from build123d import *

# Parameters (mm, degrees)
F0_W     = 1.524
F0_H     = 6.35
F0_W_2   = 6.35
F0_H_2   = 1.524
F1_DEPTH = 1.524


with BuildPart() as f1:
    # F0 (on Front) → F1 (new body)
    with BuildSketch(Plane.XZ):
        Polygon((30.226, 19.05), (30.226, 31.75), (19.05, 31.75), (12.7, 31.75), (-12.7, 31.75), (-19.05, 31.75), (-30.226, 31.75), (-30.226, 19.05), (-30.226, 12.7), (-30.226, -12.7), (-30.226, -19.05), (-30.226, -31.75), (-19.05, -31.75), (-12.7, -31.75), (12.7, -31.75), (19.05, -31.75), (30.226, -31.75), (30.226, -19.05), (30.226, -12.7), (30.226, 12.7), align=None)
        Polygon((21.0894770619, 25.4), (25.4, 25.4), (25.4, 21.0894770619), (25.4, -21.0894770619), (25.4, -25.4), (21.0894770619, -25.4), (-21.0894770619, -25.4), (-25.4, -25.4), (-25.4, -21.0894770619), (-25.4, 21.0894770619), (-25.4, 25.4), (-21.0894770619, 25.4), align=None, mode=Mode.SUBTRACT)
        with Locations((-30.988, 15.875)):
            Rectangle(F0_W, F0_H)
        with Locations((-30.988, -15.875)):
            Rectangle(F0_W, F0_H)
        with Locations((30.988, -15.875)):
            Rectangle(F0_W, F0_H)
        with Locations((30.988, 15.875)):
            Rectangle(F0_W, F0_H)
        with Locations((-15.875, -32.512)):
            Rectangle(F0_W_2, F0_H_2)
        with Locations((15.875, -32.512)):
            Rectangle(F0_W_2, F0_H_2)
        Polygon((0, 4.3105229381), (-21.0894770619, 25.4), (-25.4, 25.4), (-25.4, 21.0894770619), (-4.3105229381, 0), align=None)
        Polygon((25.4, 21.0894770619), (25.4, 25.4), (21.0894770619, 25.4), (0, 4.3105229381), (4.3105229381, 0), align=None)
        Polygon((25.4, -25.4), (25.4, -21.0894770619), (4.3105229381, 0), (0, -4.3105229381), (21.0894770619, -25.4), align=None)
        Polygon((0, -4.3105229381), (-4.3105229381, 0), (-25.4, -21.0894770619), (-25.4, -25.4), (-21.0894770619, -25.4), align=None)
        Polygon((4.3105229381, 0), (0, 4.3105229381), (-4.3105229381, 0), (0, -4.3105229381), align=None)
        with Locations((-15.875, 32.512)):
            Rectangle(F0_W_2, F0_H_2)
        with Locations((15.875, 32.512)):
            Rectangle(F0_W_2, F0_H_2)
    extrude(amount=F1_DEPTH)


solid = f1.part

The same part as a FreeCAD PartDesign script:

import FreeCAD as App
import Part
import Sketcher
Q = App.Units.Quantity

doc = App.newDocument("Part")
params = doc.addObject("Spreadsheet::Sheet", "Params")
for row, (alias, value) in enumerate([
    ("sketch1_width", "1 in"),
    ("sketch1_height", "0.5 in"),
    ("sketch1_width2", "0.44 in"),
    ("sketch1_width3", "0.25 in"),
    ("sketch1_width4", "0.06 in"),
    ("pad1_length", "0.06 in"),
], start=1):
    params.set(f"A{row}", alias)
    params.set(f"B{row}", "=" + value)
    params.setAlias(f"B{row}", alias)

body = doc.addObject("PartDesign::Body", "Body")

sketch1 = body.newObject("Sketcher::SketchObject", "Sketch")
sketch1.AttachmentSupport = (doc.getObject("XZ_Plane"), [""])
sketch1.MapMode = "FlatFace"
sketch1.addGeometry(Part.LineSegment(App.Vector(30.2, 31.8, 0), App.Vector(19.1, 31.8, 0)), False)
sketch1.addGeometry(Part.LineSegment(App.Vector(19.1, 31.8, 0), App.Vector(19.1, 33.3, 0)), False)
sketch1.addGeometry(Part.LineSegment(App.Vector(19.1, 33.3, 0), App.Vector(12.7, 33.3, 0)), False)
sketch1.addGeometry(Part.LineSegment(App.Vector(12.7, 33.3, 0), App.Vector(12.7, 31.8, 0)), False)
sketch1.addGeometry(Part.LineSegment(App.Vector(12.7, 31.8, 0), App.Vector(-12.7, 31.8, 0)), False)
sketch1.addGeometry(Part.LineSegment(App.Vector(-12.7, 31.8, 0), App.Vector(-12.7, 33.3, 0)), False)
sketch1.addGeometry(Part.LineSegment(App.Vector(-12.7, 33.3, 0), App.Vector(-19.1, 33.3, 0)), False)
sketch1.addGeometry(Part.LineSegment(App.Vector(-19.1, 33.3, 0), App.Vector(-19.1, 31.8, 0)), False)
sketch1.addGeometry(Part.LineSegment(App.Vector(-19.1, 31.8, 0), App.Vector(-30.2, 31.8, 0)), False)
sketch1.addGeometry(Part.LineSegment(App.Vector(-30.2, 31.8, 0), App.Vector(-30.2, 19.1, 0)), False)
sketch1.addGeometry(Part.LineSegment(App.Vector(-30.2, 19.1, 0), App.Vector(-31.8, 19.1, 0)), False)
sketch1.addGeometry(Part.LineSegment(App.Vector(-31.8, 19.1, 0), App.Vector(-31.8, 12.7, 0)), False)
sketch1.addGeometry(Part.LineSegment(App.Vector(-31.8, 12.7, 0), App.Vector(-30.2, 12.7, 0)), False)
sketch1.addGeometry(Part.LineSegment(App.Vector(-30.2, 12.7, 0), App.Vector(-30.2, -12.7, 0)), False)
sketch1.addGeometry(Part.LineSegment(App.Vector(-30.2, -12.7, 0), App.Vector(-31.8, -12.7, 0)), False)
sketch1.addGeometry(Part.LineSegment(App.Vector(-31.8, -12.7, 0), App.Vector(-31.8, -19.1, 0)), False)
sketch1.addGeometry(Part.LineSegment(App.Vector(-31.8, -19.1, 0), App.Vector(-30.2, -19.1, 0)), False)
sketch1.addGeometry(Part.LineSegment(App.Vector(-30.2, -19.1, 0), App.Vector(-30.2, -31.8, 0)), False)
sketch1.addGeometry(Part.LineSegment(App.Vector(-30.2, -31.8, 0), App.Vector(-19.1, -31.8, 0)), False)
sketch1.addGeometry(Part.LineSegment(App.Vector(-19.1, -31.8, 0), App.Vector(-19.1, -33.3, 0)), False)
sketch1.addGeometry(Part.LineSegment(App.Vector(-19.1, -33.3, 0), App.Vector(-12.7, -33.3, 0)), False)
sketch1.addGeometry(Part.LineSegment(App.Vector(-12.7, -33.3, 0), App.Vector(-12.7, -31.8, 0)), False)
sketch1.addGeometry(Part.LineSegment(App.Vector(-12.7, -31.8, 0), App.Vector(12.7, -31.8, 0)), False)
sketch1.addGeometry(Part.LineSegment(App.Vector(12.7, -31.8, 0), App.Vector(12.7, -33.3, 0)), False)
sketch1.addGeometry(Part.LineSegment(App.Vector(12.7, -33.3, 0), App.Vector(19.1, -33.3, 0)), False)
sketch1.addGeometry(Part.LineSegment(App.Vector(19.1, -33.3, 0), App.Vector(19.1, -31.8, 0)), False)
sketch1.addGeometry(Part.LineSegment(App.Vector(19.1, -31.8, 0), App.Vector(30.2, -31.8, 0)), False)
sketch1.addGeometry(Part.LineSegment(App.Vector(30.2, -31.8, 0), App.Vector(30.2, -19.1, 0)), False)
sketch1.addGeometry(Part.LineSegment(App.Vector(30.2, -19.1, 0), App.Vector(31.8, -19.1, 0)), False)
sketch1.addGeometry(Part.LineSegment(App.Vector(31.8, -19.1, 0), App.Vector(31.8, -12.7, 0)), False)
sketch1.addGeometry(Part.LineSegment(App.Vector(31.8, -12.7, 0), App.Vector(30.2, -12.7, 0)), False)
sketch1.addGeometry(Part.LineSegment(App.Vector(30.2, -12.7, 0), App.Vector(30.2, 12.7, 0)), False)
sketch1.addGeometry(Part.LineSegment(App.Vector(30.2, 12.7, 0), App.Vector(31.8, 12.7, 0)), False)
sketch1.addGeometry(Part.LineSegment(App.Vector(31.8, 12.7, 0), App.Vector(31.8, 19.1, 0)), False)
sketch1.addGeometry(Part.LineSegment(App.Vector(31.8, 19.1, 0), App.Vector(30.2, 19.1, 0)), False)
sketch1.addGeometry(Part.LineSegment(App.Vector(30.2, 19.1, 0), App.Vector(30.2, 31.8, 0)), False)
sketch1.addGeometry(Part.LineSegment(App.Vector(-21.1, -25.4, 0), App.Vector(0, -4.3, 0)), False)
sketch1.addGeometry(Part.LineSegment(App.Vector(0, -4.3, 0), App.Vector(21.1, -25.4, 0)), False)
sketch1.addGeometry(Part.LineSegment(App.Vector(21.1, -25.4, 0), App.Vector(-21.1, -25.4, 0)), False)
sketch1.addGeometry(Part.LineSegment(App.Vector(-25.4, 21.1, 0), App.Vector(-4.3, 0, 0)), False)
sketch1.addGeometry(Part.LineSegment(App.Vector(-4.3, 0, 0), App.Vector(-25.4, -21.1, 0)), False)
sketch1.addGeometry(Part.LineSegment(App.Vector(-25.4, -21.1, 0), App.Vector(-25.4, 21.1, 0)), False)
sketch1.addGeometry(Part.LineSegment(App.Vector(25.4, -21.1, 0), App.Vector(4.3, 0, 0)), False)
sketch1.addGeometry(Part.LineSegment(App.Vector(4.3, 0, 0), App.Vector(25.4, 21.1, 0)), False)
sketch1.addGeometry(Part.LineSegment(App.Vector(25.4, 21.1, 0), App.Vector(25.4, -21.1, 0)), False)
sketch1.addGeometry(Part.LineSegment(App.Vector(21.1, 25.4, 0), App.Vector(0, 4.3, 0)), False)
sketch1.addGeometry(Part.LineSegment(App.Vector(0, 4.3, 0), App.Vector(-21.1, 25.4, 0)), False)
sketch1.addGeometry(Part.LineSegment(App.Vector(-21.1, 25.4, 0), App.Vector(21.1, 25.4, 0)), False)
sketch1.addConstraint(Sketcher.Constraint("Coincident", 0, 2, 1, 1))
sketch1.addConstraint(Sketcher.Constraint("Coincident", 1, 2, 2, 1))
sketch1.addConstraint(Sketcher.Constraint("Coincident", 2, 2, 3, 1))
sketch1.addConstraint(Sketcher.Constraint("Coincident", 3, 2, 4, 1))
sketch1.addConstraint(Sketcher.Constraint("Coincident", 4, 2, 5, 1))
sketch1.addConstraint(Sketcher.Constraint("Coincident", 5, 2, 6, 1))
sketch1.addConstraint(Sketcher.Constraint("Coincident", 6, 2, 7, 1))
sketch1.addConstraint(Sketcher.Constraint("Coincident", 7, 2, 8, 1))
sketch1.addConstraint(Sketcher.Constraint("Coincident", 8, 2, 9, 1))
sketch1.addConstraint(Sketcher.Constraint("Coincident", 9, 2, 10, 1))
sketch1.addConstraint(Sketcher.Constraint("Coincident", 10, 2, 11, 1))
sketch1.addConstraint(Sketcher.Constraint("Coincident", 11, 2, 12, 1))
sketch1.addConstraint(Sketcher.Constraint("Coincident", 12, 2, 13, 1))
sketch1.addConstraint(Sketcher.Constraint("Coincident", 13, 2, 14, 1))
sketch1.addConstraint(Sketcher.Constraint("Coincident", 14, 2, 15, 1))
sketch1.addConstraint(Sketcher.Constraint("Coincident", 15, 2, 16, 1))
sketch1.addConstraint(Sketcher.Constraint("Coincident", 16, 2, 17, 1))
sketch1.addConstraint(Sketcher.Constraint("Coincident", 17, 2, 18, 1))
sketch1.addConstraint(Sketcher.Constraint("Coincident", 18, 2, 19, 1))
sketch1.addConstraint(Sketcher.Constraint("Coincident", 19, 2, 20, 1))
sketch1.addConstraint(Sketcher.Constraint("Coincident", 20, 2, 21, 1))
sketch1.addConstraint(Sketcher.Constraint("Coincident", 21, 2, 22, 1))
sketch1.addConstraint(Sketcher.Constraint("Coincident", 22, 2, 23, 1))
sketch1.addConstraint(Sketcher.Constraint("Coincident", 23, 2, 24, 1))
sketch1.addConstraint(Sketcher.Constraint("Coincident", 24, 2, 25, 1))
sketch1.addConstraint(Sketcher.Constraint("Coincident", 25, 2, 26, 1))
sketch1.addConstraint(Sketcher.Constraint("Coincident", 26, 2, 27, 1))
sketch1.addConstraint(Sketcher.Constraint("Coincident", 27, 2, 28, 1))
sketch1.addConstraint(Sketcher.Constraint("Coincident", 28, 2, 29, 1))
sketch1.addConstraint(Sketcher.Constraint("Coincident", 29, 2, 30, 1))
sketch1.addConstraint(Sketcher.Constraint("Coincident", 30, 2, 31, 1))
sketch1.addConstraint(Sketcher.Constraint("Coincident", 31, 2, 32, 1))
sketch1.addConstraint(Sketcher.Constraint("Coincident", 32, 2, 33, 1))
sketch1.addConstraint(Sketcher.Constraint("Coincident", 33, 2, 34, 1))
sketch1.addConstraint(Sketcher.Constraint("Coincident", 34, 2, 35, 1))
sketch1.addConstraint(Sketcher.Constraint("Coincident", 35, 2, 0, 1))
sketch1.addConstraint(Sketcher.Constraint("Coincident", 36, 2, 37, 1))
sketch1.addConstraint(Sketcher.Constraint("Coincident", 37, 2, 38, 1))
sketch1.addConstraint(Sketcher.Constraint("Coincident", 38, 2, 36, 1))
sketch1.addConstraint(Sketcher.Constraint("Coincident", 39, 2, 40, 1))
sketch1.addConstraint(Sketcher.Constraint("Coincident", 40, 2, 41, 1))
sketch1.addConstraint(Sketcher.Constraint("Coincident", 41, 2, 39, 1))
sketch1.addConstraint(Sketcher.Constraint("Coincident", 42, 2, 43, 1))
sketch1.addConstraint(Sketcher.Constraint("Coincident", 43, 2, 44, 1))
sketch1.addConstraint(Sketcher.Constraint("Coincident", 44, 2, 42, 1))
sketch1.addConstraint(Sketcher.Constraint("Coincident", 45, 2, 46, 1))
sketch1.addConstraint(Sketcher.Constraint("Coincident", 46, 2, 47, 1))
sketch1.addConstraint(Sketcher.Constraint("Coincident", 47, 2, 45, 1))
sketch1.addConstraint(Sketcher.Constraint("Horizontal", 0))
sketch1.addConstraint(Sketcher.Constraint("Vertical", 1))
sketch1.addConstraint(Sketcher.Constraint("Horizontal", 2))
sketch1.addConstraint(Sketcher.Constraint("Vertical", 3))
sketch1.addConstraint(Sketcher.Constraint("Horizontal", 4))
sketch1.addConstraint(Sketcher.Constraint("Vertical", 5))
sketch1.addConstraint(Sketcher.Constraint("Horizontal", 6))
sketch1.addConstraint(Sketcher.Constraint("Vertical", 7))
sketch1.addConstraint(Sketcher.Constraint("Horizontal", 8))
sketch1.addConstraint(Sketcher.Constraint("Vertical", 9))
sketch1.addConstraint(Sketcher.Constraint("Horizontal", 10))
sketch1.addConstraint(Sketcher.Constraint("Vertical", 11))
sketch1.addConstraint(Sketcher.Constraint("Horizontal", 12))
sketch1.addConstraint(Sketcher.Constraint("Vertical", 13))
sketch1.addConstraint(Sketcher.Constraint("Horizontal", 14))
sketch1.addConstraint(Sketcher.Constraint("Vertical", 15))
sketch1.addConstraint(Sketcher.Constraint("Horizontal", 16))
sketch1.addConstraint(Sketcher.Constraint("Vertical", 17))
sketch1.addConstraint(Sketcher.Constraint("Horizontal", 18))
sketch1.addConstraint(Sketcher.Constraint("Vertical", 19))
sketch1.addConstraint(Sketcher.Constraint("Horizontal", 20))
sketch1.addConstraint(Sketcher.Constraint("Vertical", 21))
sketch1.addConstraint(Sketcher.Constraint("Horizontal", 22))
sketch1.addConstraint(Sketcher.Constraint("Vertical", 23))
sketch1.addConstraint(Sketcher.Constraint("Horizontal", 24))
sketch1.addConstraint(Sketcher.Constraint("Vertical", 25))
sketch1.addConstraint(Sketcher.Constraint("Horizontal", 26))
sketch1.addConstraint(Sketcher.Constraint("Vertical", 27))
sketch1.addConstraint(Sketcher.Constraint("Horizontal", 28))
sketch1.addConstraint(Sketcher.Constraint("Vertical", 29))
sketch1.addConstraint(Sketcher.Constraint("Horizontal", 30))
sketch1.addConstraint(Sketcher.Constraint("Vertical", 31))
sketch1.addConstraint(Sketcher.Constraint("Horizontal", 32))
sketch1.addConstraint(Sketcher.Constraint("Vertical", 33))
sketch1.addConstraint(Sketcher.Constraint("Horizontal", 34))
sketch1.addConstraint(Sketcher.Constraint("Vertical", 35))
sketch1.addConstraint(Sketcher.Constraint("Horizontal", 38))
sketch1.addConstraint(Sketcher.Constraint("Vertical", 41))
sketch1.addConstraint(Sketcher.Constraint("Vertical", 44))
sketch1.addConstraint(Sketcher.Constraint("Horizontal", 47))
sketch1.addConstraint(Sketcher.Constraint("Symmetric", 0, 2, 18, 2, -1, 1))
sketch1.addConstraint(Sketcher.Constraint("Symmetric", 2, 2, 20, 2, -1, 1))
sketch1.addConstraint(Sketcher.Constraint("Symmetric", 4, 2, 22, 2, -1, 1))
sketch1.addConstraint(Sketcher.Constraint("Symmetric", 6, 2, 24, 2, -1, 1))
sketch1.addConstraint(Sketcher.Constraint("Symmetric", 8, 2, 26, 2, -1, 1))
sketch1.addConstraint(Sketcher.Constraint("Symmetric", 10, 2, 28, 2, -1, 1))
sketch1.addConstraint(Sketcher.Constraint("Symmetric", 12, 2, 30, 2, -1, 1))
sketch1.addConstraint(Sketcher.Constraint("Symmetric", 14, 2, 32, 2, -1, 1))
sketch1.addConstraint(Sketcher.Constraint("Symmetric", 16, 2, 34, 2, -1, 1))
sketch1.addConstraint(Sketcher.Constraint("Symmetric", 39, 2, 42, 2, -1, 1))
sketch1.addConstraint(Sketcher.Constraint("Symmetric", 40, 2, 43, 2, -1, 1))
sketch1.addConstraint(Sketcher.Constraint("Symmetric", 36, 2, 45, 2, -1, 1))
sketch1.addConstraint(Sketcher.Constraint("Symmetric", 37, 2, 46, 2, -1, 1))
sketch1.addConstraint(Sketcher.Constraint("Symmetric", 2, 2, 5, 2, -2))
sketch1.addConstraint(Sketcher.Constraint("Symmetric", 0, 2, 7, 2, -2))
sketch1.addConstraint(Sketcher.Constraint("Symmetric", 16, 2, 27, 2, -2))
sketch1.addConstraint(Sketcher.Constraint("Symmetric", 14, 2, 29, 2, -2))
sketch1.addConstraint(Sketcher.Constraint("PointOnObject", 36, 2, -2))
sketch1.addConstraint(Sketcher.Constraint("PointOnObject", 39, 2, -1))
sketch1.addConstraint(Sketcher.Constraint("Perpendicular", 36, 37))
sketch1.addConstraint(Sketcher.Constraint("Parallel", 37, 39))
sketch1.addConstraint(Sketcher.Constraint("Perpendicular", 39, 40))
sketch1.addConstraint(Sketcher.Constraint("Perpendicular", 40, 42))
sketch1.addConstraint(Sketcher.Constraint("Parallel", 43, 45))
sketch1.addConstraint(Sketcher.Constraint("Horizontal", 0, 2, 3, 2))
sketch1.addConstraint(Sketcher.Constraint("Horizontal", 41, 2, 43, 2))
sketch1.addConstraint(Sketcher.Constraint("Vertical", 9, 2, 12, 2))
sketch1.addConstraint(Sketcher.Constraint("Equal", 34, 1))
sketch1.addConstraint(Sketcher.Constraint("Equal", 24, 11))
sketch1.addConstraint(Sketcher.Constraint("Equal", 22, 13))
sketch1.addConstraint(Sketcher.Constraint("Equal", 47, 41))
sketch1.addConstraint(Sketcher.Constraint("DistanceX", 4, 2, 4, 1, Q("1 in")))
sketch1.addConstraint(Sketcher.Constraint("DistanceY", 9, 2, 9, 1, Q("0.5 in")))
sketch1.addConstraint(Sketcher.Constraint("DistanceY", 37, 2, -1, 1, Q("1 in")))
sketch1.addConstraint(Sketcher.Constraint("DistanceX", 40, 2, -1, 1, Q("1 in")))
sketch1.addConstraint(Sketcher.Constraint("DistanceX", 0, 2, 0, 1, Q("0.44 in")))
sketch1.addConstraint(Sketcher.Constraint("DistanceX", 2, 2, 2, 1, Q("0.25 in")))
sketch1.addConstraint(Sketcher.Constraint("DistanceX", 10, 2, 10, 1, Q("0.06 in")))
sketch1.addConstraint(Sketcher.Constraint("DistanceX", 38, 2, 38, 1, Q("42.178954 mm")))
sketch1.setExpression("Constraints[119]", "Params.sketch1_width")
sketch1.setExpression("Constraints[120]", "Params.sketch1_height")
sketch1.setExpression("Constraints[123]", "Params.sketch1_width2")
sketch1.setExpression("Constraints[124]", "Params.sketch1_width3")
sketch1.setExpression("Constraints[125]", "Params.sketch1_width4")
pad1 = body.newObject("PartDesign::Pad", "Pad")
pad1.Profile = sketch1
pad1.setExpression("Length", "Params.pad1_length")

doc.recompute()
